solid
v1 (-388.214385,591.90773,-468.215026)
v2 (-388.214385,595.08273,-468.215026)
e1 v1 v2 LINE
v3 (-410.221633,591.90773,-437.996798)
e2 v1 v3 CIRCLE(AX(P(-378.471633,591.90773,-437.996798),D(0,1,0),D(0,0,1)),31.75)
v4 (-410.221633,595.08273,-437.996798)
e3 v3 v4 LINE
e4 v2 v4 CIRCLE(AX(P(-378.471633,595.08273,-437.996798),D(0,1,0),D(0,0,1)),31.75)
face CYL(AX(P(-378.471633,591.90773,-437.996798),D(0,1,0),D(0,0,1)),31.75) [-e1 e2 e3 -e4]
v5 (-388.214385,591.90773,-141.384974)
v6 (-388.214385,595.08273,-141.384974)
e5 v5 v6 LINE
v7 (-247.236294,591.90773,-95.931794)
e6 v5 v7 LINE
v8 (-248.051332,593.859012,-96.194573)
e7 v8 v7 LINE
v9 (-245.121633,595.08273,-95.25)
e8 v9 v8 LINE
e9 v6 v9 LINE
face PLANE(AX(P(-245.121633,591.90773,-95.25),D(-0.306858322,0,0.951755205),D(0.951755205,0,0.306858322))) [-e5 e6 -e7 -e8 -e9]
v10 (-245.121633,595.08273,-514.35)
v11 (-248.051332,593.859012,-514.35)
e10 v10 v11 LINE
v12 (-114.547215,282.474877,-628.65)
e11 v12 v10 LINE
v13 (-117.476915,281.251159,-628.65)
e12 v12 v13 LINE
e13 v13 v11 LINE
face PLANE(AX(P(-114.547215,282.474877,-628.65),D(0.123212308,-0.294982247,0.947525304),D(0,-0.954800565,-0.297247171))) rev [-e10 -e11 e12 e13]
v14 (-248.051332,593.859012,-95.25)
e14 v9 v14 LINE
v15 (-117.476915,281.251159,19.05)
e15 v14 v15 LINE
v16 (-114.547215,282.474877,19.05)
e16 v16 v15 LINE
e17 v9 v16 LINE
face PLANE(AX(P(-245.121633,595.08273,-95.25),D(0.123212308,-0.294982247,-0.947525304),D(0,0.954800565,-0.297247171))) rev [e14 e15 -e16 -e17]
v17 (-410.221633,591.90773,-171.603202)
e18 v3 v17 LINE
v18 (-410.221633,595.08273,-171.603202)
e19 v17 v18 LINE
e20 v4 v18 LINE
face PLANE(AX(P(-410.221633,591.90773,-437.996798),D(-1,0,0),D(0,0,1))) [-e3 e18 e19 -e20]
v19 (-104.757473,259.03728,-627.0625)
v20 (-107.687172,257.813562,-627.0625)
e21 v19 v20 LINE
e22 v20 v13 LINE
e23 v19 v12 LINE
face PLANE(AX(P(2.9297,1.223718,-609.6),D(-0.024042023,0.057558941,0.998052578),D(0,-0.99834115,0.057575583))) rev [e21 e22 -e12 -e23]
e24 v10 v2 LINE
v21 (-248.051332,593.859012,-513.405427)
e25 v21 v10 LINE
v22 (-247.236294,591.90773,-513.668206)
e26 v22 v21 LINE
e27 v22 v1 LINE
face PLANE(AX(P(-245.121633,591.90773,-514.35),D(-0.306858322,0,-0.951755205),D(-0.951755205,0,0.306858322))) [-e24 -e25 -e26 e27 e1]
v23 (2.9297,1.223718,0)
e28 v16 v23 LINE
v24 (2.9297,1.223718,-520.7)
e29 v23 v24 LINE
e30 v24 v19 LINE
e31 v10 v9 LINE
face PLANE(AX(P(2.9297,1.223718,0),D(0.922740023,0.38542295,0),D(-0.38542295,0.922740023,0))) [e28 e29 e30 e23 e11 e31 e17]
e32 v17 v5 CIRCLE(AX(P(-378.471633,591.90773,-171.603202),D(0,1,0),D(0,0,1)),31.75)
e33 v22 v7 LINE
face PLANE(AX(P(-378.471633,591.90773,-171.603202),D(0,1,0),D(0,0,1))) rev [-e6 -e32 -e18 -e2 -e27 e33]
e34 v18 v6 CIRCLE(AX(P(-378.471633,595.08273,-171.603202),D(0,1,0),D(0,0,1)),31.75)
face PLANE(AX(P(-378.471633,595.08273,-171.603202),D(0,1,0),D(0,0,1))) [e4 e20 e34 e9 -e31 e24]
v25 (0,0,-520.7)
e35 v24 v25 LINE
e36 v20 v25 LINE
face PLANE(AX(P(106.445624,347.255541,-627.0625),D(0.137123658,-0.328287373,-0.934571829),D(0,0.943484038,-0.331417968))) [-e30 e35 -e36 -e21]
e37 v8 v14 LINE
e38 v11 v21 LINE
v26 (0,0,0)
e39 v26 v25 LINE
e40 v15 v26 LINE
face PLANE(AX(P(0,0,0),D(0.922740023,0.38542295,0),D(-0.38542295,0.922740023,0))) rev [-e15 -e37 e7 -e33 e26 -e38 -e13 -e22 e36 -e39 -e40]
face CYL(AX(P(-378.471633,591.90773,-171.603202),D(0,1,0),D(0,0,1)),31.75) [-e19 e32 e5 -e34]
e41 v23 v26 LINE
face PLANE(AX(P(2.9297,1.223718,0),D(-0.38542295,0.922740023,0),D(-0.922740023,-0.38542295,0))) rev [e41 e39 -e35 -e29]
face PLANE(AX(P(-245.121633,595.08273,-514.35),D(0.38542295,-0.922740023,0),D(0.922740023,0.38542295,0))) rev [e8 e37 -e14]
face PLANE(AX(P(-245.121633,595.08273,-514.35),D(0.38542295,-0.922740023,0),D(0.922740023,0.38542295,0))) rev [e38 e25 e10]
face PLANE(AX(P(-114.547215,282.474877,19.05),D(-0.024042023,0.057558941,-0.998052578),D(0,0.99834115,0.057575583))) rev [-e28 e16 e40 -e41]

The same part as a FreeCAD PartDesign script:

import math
import FreeCAD as App
import Part
import Sketcher
from FreeCAD import Vector
Q = App.Units.Quantity

doc = App.newDocument("Part")
body = doc.addObject("PartDesign::Body", "Body")

# Sketch on an angled plane
sketch1 = body.newObject("Sketcher::SketchObject", "Sketch")
sketch1.Placement = App.Placement(Vector(0, 0, 0), App.Rotation(Vector(0, 0, -1), Vector(-0.38542295, 0.922740023, 0), Vector(0.922740023, 0.38542295, 0), "ZXY"))
sketch1.addGeometry(Part.LineSegment(Vector(0, 0, 0), Vector(609.6, 0, 0)), False)
sketch1.addGeometry(Part.LineSegment(Vector(609.6, 0, 0), Vector(628.65, 304.8, 0)), False)
sketch1.addGeometry(Part.LineSegment(Vector(628.65, 304.8, 0), Vector(514.35, 643.582155, 0)), False)
sketch1.addGeometry(Part.LineSegment(Vector(514.35, 643.582155, 0), Vector(95.25, 643.582155, 0)), False)
sketch1.addGeometry(Part.LineSegment(Vector(95.25, 643.582155, 0), Vector(-19.05, 304.8, 0)), False)
sketch1.addGeometry(Part.LineSegment(Vector(-19.05, 304.8, 0), Vector(0, 0, 0)), False)
sketch1.addConstraint(Sketcher.Constraint("Coincident", 0, 2, 1, 1))
sketch1.addConstraint(Sketcher.Constraint("Coincident", 1, 2, 2, 1))
sketch1.addConstraint(Sketcher.Constraint("Coincident", 2, 2, 3, 1))
sketch1.addConstraint(Sketcher.Constraint("Coincident", 3, 2, 4, 1))
sketch1.addConstraint(Sketcher.Constraint("Coincident", 4, 2, 5, 1))
sketch1.addConstraint(Sketcher.Constraint("Coincident", 5, 2, 0, 1))
sketch1.addConstraint(Sketcher.Constraint("Horizontal", 0))
sketch1.addConstraint(Sketcher.Constraint("Horizontal", 3))
sketch1.addConstraint(Sketcher.Constraint("Coincident", 5, 2, -1, 1))
sketch1.addConstraint(Sketcher.Constraint("Horizontal", 1, 2, 4, 2))
sketch1.addConstraint(Sketcher.Constraint("Equal", 2, 4))
sketch1.addConstraint(Sketcher.Constraint("Equal", 1, 5))
sketch1.addConstraint(Sketcher.Constraint("DistanceX", 0, 1, 0, 2, Q("24 in")))
sketch1.addConstraint(Sketcher.Constraint("DistanceX", 3, 2, 3, 1, Q("16.5 in")))
sketch1.addConstraint(Sketcher.Constraint("DistanceY", -1, 1, 1, 2, Q("12 in")))
sketch1.addConstraint(Sketcher.Constraint("DistanceX", 3, 2, 1, 2, Q("21 in")))
sketch1.addConstraint(Sketcher.Constraint("Distance", 2, Q("357.544177 mm")))
pad1 = body.newObject("PartDesign::Pad", "Pad")
pad1.Profile = sketch1
pad1.Length = Q("0.125 in")

# Sketch on XZ plane
sketch2 = body.newObject("Sketcher::SketchObject", "Sketch001")
sketch2.AttachmentSupport = (doc.getObject("XZ_Plane"), [""])
sketch2.MapMode = "FlatFace"
sketch2.AttachmentOffset = App.Placement(Vector(0, 0, -595.08273), App.Rotation())
sketch2.addGeometry(Part.LineSegment(Vector(-245.121633, -514.35, 0), Vector(-388.214385, -468.215026, 0)), False)
sketch2.addGeometry(Part.ArcOfCircle(Part.Circle(Vector(-378.471633, -437.996798, 0), Vector(0, 0, 1), 31.75), math.radians(180), math.radians(252.13)), False)
sketch2.addGeometry(Part.LineSegment(Vector(-410.221633, -437.996798, 0), Vector(-410.221633, -171.603202, 0)), False)
sketch2.addGeometry(Part.ArcOfCircle(Part.Circle(Vector(-378.471633, -171.603202, 0), Vector(0, 0, 1), 31.75), math.radians(107.87), math.radians(180)), False)
sketch2.addGeometry(Part.LineSegment(Vector(-388.214385, -141.384974, 0), Vector(-245.121633, -95.25, 0)), False)
sketch2.addGeometry(Part.LineSegment(Vector(-245.121633, -95.25, 0), Vector(-245.121633, -514.35, 0)), False)
sketch2.addConstraint(Sketcher.Constraint("Tangent", 0, 2, 1, 2))
sketch2.addConstraint(Sketcher.Constraint("Tangent", 1, 1, 2, 1))
sketch2.addConstraint(Sketcher.Constraint("Tangent", 2, 2, 3, 2))
sketch2.addConstraint(Sketcher.Constraint("Tangent", 3, 1, 4, 1))
sketch2.addConstraint(Sketcher.Constraint("Coincident", 4, 2, 5, 1))
sketch2.addConstraint(Sketcher.Constraint("Coincident", 5, 2, 0, 1))
sketch2.addConstraint(Sketcher.Constraint("Vertical", 2))
sketch2.addConstraint(Sketcher.Constraint("Vertical", 5))
sketch2.addConstraint(Sketcher.Constraint("Equal", 1, 3))
sketch2.addConstraint(Sketcher.Constraint("Vertical", 0, 2, 3, 1))
sketch2.addConstraint(Sketcher.Constraint("Radius", 1, Q("1.25 in")))
sketch2.addConstraint(Sketcher.Constraint("DistanceY", 5, 2, 5, 1, Q("16.5 in")))
sketch2.addConstraint(Sketcher.Constraint("DistanceX", 2, 2, 4, 2, Q("6.5 in")))
sketch2.addConstraint(Sketcher.Constraint("DistanceY", 4, 2, -1, 1, Q("3.75 in")))
sketch2.addConstraint(Sketcher.Constraint("Angle", 0, Q("162.13 deg")))
sketch2.addConstraint(Sketcher.Constraint("DistanceX", 1, 3, -1, 1, Q("378.471633 mm")))
pad2 = body.newObject("PartDesign::Pad", "Pad001")
pad2.Profile = sketch2
pad2.Length = Q("0.125 in")

# Sketch on an angled plane
sketch3 = body.newObject("Sketcher::SketchObject", "Sketch002")
sketch3.Placement = App.Placement(Vector(0, 0, 0), App.Rotation(Vector(0, 0, -1), Vector(-0.38542295, 0.922740023, 0), Vector(0.922740023, 0.38542295, 0), "ZXY"))
sketch3.addGeometry(Part.LineSegment(Vector(609.6, 0, 0), Vector(627.0625, 279.4, 0)), False)
sketch3.addGeometry(Part.LineSegment(Vector(627.0625, 279.4, 0), Vector(520.7, 0, 0)), False)
sketch3.addGeometry(Part.LineSegment(Vector(520.7, 0, 0), Vector(609.6, 0, 0)), False)
sketch3.addConstraint(Sketcher.Constraint("Coincident", 0, 2, 1, 1))
sketch3.addConstraint(Sketcher.Constraint("Coincident", 1, 2, 2, 1))
sketch3.addConstraint(Sketcher.Constraint("Coincident", 2, 2, 0, 1))
sketch3.addConstraint(Sketcher.Constraint("Horizontal", 2))
sketch3.addConstraint(Sketcher.Constraint("PointOnObject", 1, 2, -1))
sketch3.addConstraint(Sketcher.Constraint("DistanceX", 2, 1, 2, 2, Q("3.5 in")))
sketch3.addConstraint(Sketcher.Constraint("DistanceY", -1, 1, 0, 2, Q("11 in")))
sketch3.addConstraint(Sketcher.Constraint("DistanceX", -1, 1, 2, 2, Q("24 in")))
sketch3.addConstraint(Sketcher.Constraint("DistanceX", -1, 1, 0, 2, Q("24.6875 in")))
pocket1 = body.newObject("PartDesign::Pocket", "Pocket")
pocket1.Profile = sketch3
pocket1.Type = "ThroughAll"
pocket1.Reversed = True

doc.recompute()
